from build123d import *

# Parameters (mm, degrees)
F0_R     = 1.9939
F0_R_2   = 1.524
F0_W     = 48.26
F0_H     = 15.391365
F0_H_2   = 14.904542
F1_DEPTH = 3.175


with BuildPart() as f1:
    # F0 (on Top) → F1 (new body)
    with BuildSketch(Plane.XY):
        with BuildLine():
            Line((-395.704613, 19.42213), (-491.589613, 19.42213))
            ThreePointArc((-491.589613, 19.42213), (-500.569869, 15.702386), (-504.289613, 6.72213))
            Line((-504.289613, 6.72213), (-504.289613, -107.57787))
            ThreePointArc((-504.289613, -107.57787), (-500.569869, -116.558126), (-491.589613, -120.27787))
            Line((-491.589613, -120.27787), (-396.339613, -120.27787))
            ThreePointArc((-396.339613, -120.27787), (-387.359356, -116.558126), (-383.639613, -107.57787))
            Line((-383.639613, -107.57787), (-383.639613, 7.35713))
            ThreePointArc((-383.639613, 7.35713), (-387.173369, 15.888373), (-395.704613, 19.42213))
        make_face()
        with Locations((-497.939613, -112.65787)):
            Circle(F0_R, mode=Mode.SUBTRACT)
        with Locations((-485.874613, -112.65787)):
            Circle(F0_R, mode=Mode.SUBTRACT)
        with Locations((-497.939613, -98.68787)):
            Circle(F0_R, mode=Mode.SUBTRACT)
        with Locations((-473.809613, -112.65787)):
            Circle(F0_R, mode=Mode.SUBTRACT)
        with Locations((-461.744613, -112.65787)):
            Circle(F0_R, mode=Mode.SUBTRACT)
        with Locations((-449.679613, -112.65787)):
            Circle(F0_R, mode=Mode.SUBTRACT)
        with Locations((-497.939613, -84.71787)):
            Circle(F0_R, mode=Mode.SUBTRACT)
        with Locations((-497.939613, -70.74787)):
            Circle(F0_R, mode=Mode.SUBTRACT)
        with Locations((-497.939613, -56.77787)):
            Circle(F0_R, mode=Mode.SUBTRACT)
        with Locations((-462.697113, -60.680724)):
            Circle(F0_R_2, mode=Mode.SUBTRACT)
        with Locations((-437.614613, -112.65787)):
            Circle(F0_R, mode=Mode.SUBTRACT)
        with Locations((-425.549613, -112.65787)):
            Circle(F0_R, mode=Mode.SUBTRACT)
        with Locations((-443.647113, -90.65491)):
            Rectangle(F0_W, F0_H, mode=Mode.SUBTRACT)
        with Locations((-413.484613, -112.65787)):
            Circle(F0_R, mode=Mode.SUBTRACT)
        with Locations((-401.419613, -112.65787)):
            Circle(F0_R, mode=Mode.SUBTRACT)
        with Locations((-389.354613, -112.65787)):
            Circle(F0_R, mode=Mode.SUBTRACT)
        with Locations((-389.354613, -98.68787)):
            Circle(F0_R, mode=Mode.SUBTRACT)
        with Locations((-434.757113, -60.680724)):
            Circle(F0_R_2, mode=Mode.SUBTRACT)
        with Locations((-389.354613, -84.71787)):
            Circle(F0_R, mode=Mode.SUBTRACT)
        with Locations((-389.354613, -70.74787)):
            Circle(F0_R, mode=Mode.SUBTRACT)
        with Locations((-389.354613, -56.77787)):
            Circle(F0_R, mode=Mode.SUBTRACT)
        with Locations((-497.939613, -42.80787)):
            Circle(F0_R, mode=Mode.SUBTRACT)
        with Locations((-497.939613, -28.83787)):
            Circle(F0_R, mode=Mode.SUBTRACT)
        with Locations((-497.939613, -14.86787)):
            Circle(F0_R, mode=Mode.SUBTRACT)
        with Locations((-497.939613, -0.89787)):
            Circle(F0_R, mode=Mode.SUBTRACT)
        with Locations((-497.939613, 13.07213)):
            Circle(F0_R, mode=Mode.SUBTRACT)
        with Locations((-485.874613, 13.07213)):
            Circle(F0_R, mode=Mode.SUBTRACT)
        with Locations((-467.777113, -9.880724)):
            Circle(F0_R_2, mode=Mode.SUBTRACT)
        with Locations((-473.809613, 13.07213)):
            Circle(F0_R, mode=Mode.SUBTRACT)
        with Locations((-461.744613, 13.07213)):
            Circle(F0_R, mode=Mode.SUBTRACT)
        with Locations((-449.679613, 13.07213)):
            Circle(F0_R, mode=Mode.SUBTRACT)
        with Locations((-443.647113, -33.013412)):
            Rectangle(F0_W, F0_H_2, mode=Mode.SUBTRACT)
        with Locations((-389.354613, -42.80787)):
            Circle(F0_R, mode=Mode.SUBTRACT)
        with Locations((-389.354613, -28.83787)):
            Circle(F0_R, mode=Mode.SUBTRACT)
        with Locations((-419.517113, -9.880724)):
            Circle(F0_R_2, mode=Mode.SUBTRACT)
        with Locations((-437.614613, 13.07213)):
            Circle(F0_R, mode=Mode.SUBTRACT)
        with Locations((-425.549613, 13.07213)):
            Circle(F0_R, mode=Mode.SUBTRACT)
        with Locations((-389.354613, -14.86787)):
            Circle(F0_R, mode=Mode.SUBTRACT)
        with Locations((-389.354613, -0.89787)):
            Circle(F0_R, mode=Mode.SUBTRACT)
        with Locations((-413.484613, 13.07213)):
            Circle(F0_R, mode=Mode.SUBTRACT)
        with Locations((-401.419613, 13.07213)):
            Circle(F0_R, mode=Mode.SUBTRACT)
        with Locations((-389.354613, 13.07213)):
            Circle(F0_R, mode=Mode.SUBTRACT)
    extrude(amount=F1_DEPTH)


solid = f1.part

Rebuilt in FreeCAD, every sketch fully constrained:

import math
import FreeCAD as App
import Part
import Sketcher
Q = App.Units.Quantity


def add_polygon(sketch, points):
    """Adds a closed chain of lines whose ends are joined by coincident constraints."""
    first, n = sketch.GeometryCount, len(points)
    for a, b in zip(points, points[1:] + points[:1]):
        sketch.addGeometry(Part.LineSegment(App.Vector(*a, 0), App.Vector(*b, 0)), False)
    for i in range(n):
        sketch.addConstraint(Sketcher.Constraint("Coincident", first + i, 2, first + (i + 1) % n, 1))

doc = App.newDocument("Part")
body = doc.addObject("PartDesign::Body", "Body")

# Sketch on XY plane
sketch1 = doc.addObject("Sketcher::SketchObject", "Sketch")
body.addObject(sketch1)
sketch1.AttachmentSupport = (doc.XY_Plane, [""])
sketch1.MapMode = "FlatFace"
sketch1.addGeometry(Part.LineSegment(App.Vector(-395.7, 19.4, 0), App.Vector(-491.6, 19.4, 0)), False)  # 0
sketch1.addGeometry(Part.ArcOfCircle(Part.Circle(App.Vector(-491.6, 6.7, 0), App.Vector(0, 0, 1), 12.7), math.radians(90), math.radians(180)), False)  # 1
sketch1.addGeometry(Part.LineSegment(App.Vector(-504.3, 6.7, 0), App.Vector(-504.3, -107.6, 0)), False)  # 2
sketch1.addGeometry(Part.ArcOfCircle(Part.Circle(App.Vector(-491.6, -107.6, 0), App.Vector(0, 0, 1), 12.7), math.radians(-180), math.radians(-90)), False)  # 3
sketch1.addGeometry(Part.LineSegment(App.Vector(-491.6, -120.3, 0), App.Vector(-396.3, -120.3, 0)), False)  # 4
sketch1.addGeometry(Part.ArcOfCircle(Part.Circle(App.Vector(-396.3, -107.6, 0), App.Vector(0, 0, 1), 12.7), math.radians(-90), math.radians(0)), False)  # 5
sketch1.addGeometry(Part.LineSegment(App.Vector(-383.6, -107.6, 0), App.Vector(-383.6, 7.4, 0)), False)  # 6
sketch1.addGeometry(Part.ArcOfCircle(Part.Circle(App.Vector(-395.7, 7.4, 0), App.Vector(0, 0, 1), 12.1), math.radians(0), math.radians(90)), False)  # 7
sketch1.addGeometry(Part.Circle(App.Vector(-497.9, -112.7, 0), App.Vector(0, 0, 1), 2), False)  # 8
sketch1.addGeometry(Part.Circle(App.Vector(-485.9, -112.7, 0), App.Vector(0, 0, 1), 2), False)  # 9
sketch1.addGeometry(Part.Circle(App.Vector(-497.9, -98.7, 0), App.Vector(0, 0, 1), 2), False)  # 10
sketch1.addGeometry(Part.Circle(App.Vector(-473.8, -112.7, 0), App.Vector(0, 0, 1), 2), False)  # 11
sketch1.addGeometry(Part.Circle(App.Vector(-497.9, -84.7, 0), App.Vector(0, 0, 1), 2), False)  # 12
sketch1.addGeometry(Part.Circle(App.Vector(-461.7, -112.7, 0), App.Vector(0, 0, 1), 2), False)  # 13
sketch1.addGeometry(Part.Circle(App.Vector(-449.7, -112.7, 0), App.Vector(0, 0, 1), 2), False)  # 14
sketch1.addGeometry(Part.Circle(App.Vector(-497.9, -70.7, 0), App.Vector(0, 0, 1), 2), False)  # 15
sketch1.addGeometry(Part.Circle(App.Vector(-497.9, -56.8, 0), App.Vector(0, 0, 1), 2), False)  # 16
sketch1.addGeometry(Part.Circle(App.Vector(-462.7, -60.7, 0), App.Vector(0, 0, 1), 1.5), False)  # 17
sketch1.addGeometry(Part.Circle(App.Vector(-437.6, -112.7, 0), App.Vector(0, 0, 1), 2), False)  # 18
sketch1.addGeometry(Part.Circle(App.Vector(-425.5, -112.7, 0), App.Vector(0, 0, 1), 2), False)  # 19
add_polygon(sketch1, [(-419.5, -98.4), (-467.8, -98.4), (-467.8, -83), (-419.5, -83)])  # lines 20-23
sketch1.addGeometry(Part.Circle(App.Vector(-413.5, -112.7, 0), App.Vector(0, 0, 1), 2), False)  # 24
sketch1.addGeometry(Part.Circle(App.Vector(-401.4, -112.7, 0), App.Vector(0, 0, 1), 2), False)  # 25
sketch1.addGeometry(Part.Circle(App.Vector(-389.4, -112.7, 0), App.Vector(0, 0, 1), 2), False)  # 26
sketch1.addGeometry(Part.Circle(App.Vector(-389.4, -98.7, 0), App.Vector(0, 0, 1), 2), False)  # 27
sketch1.addGeometry(Part.Circle(App.Vector(-389.4, -84.7, 0), App.Vector(0, 0, 1), 2), False)  # 28
sketch1.addGeometry(Part.Circle(App.Vector(-434.8, -60.7, 0), App.Vector(0, 0, 1), 1.5), False)  # 29
sketch1.addGeometry(Part.Circle(App.Vector(-389.4, -70.7, 0), App.Vector(0, 0, 1), 2), False)  # 30
sketch1.addGeometry(Part.Circle(App.Vector(-389.4, -56.8, 0), App.Vector(0, 0, 1), 2), False)  # 31
sketch1.addGeometry(Part.Circle(App.Vector(-497.9, -42.8, 0), App.Vector(0, 0, 1), 2), False)  # 32
sketch1.addGeometry(Part.Circle(App.Vector(-497.9, -28.8, 0), App.Vector(0, 0, 1), 2), False)  # 33
sketch1.addGeometry(Part.Circle(App.Vector(-497.9, -14.9, 0), App.Vector(0, 0, 1), 2), False)  # 34
sketch1.addGeometry(Part.Circle(App.Vector(-497.9, -0.9, 0), App.Vector(0, 0, 1), 2), False)  # 35
sketch1.addGeometry(Part.Circle(App.Vector(-497.9, 13.1, 0), App.Vector(0, 0, 1), 2), False)  # 36
sketch1.addGeometry(Part.Circle(App.Vector(-485.9, 13.1, 0), App.Vector(0, 0, 1), 2), False)  # 37
sketch1.addGeometry(Part.Circle(App.Vector(-473.8, 13.1, 0), App.Vector(0, 0, 1), 2), False)  # 38
sketch1.addGeometry(Part.Circle(App.Vector(-467.8, -9.9, 0), App.Vector(0, 0, 1), 1.5), False)  # 39
sketch1.addGeometry(Part.Circle(App.Vector(-461.7, 13.1, 0), App.Vector(0, 0, 1), 2), False)  # 40
sketch1.addGeometry(Part.Circle(App.Vector(-449.7, 13.1, 0), App.Vector(0, 0, 1), 2), False)  # 41
add_polygon(sketch1, [(-419.5, -40.5), (-467.8, -40.5), (-467.8, -25.6), (-419.5, -25.6)])  # lines 42-45
sketch1.addGeometry(Part.Circle(App.Vector(-389.4, -42.8, 0), App.Vector(0, 0, 1), 2), False)  # 46
sketch1.addGeometry(Part.Circle(App.Vector(-389.4, -28.8, 0), App.Vector(0, 0, 1), 2), False)  # 47
sketch1.addGeometry(Part.Circle(App.Vector(-419.5, -9.9, 0), App.Vector(0, 0, 1), 1.5), False)  # 48
sketch1.addGeometry(Part.Circle(App.Vector(-437.6, 13.1, 0), App.Vector(0, 0, 1), 2), False)  # 49
sketch1.addGeometry(Part.Circle(App.Vector(-425.5, 13.1, 0), App.Vector(0, 0, 1), 2), False)  # 50
sketch1.addGeometry(Part.Circle(App.Vector(-389.4, -14.9, 0), App.Vector(0, 0, 1), 2), False)  # 51
sketch1.addGeometry(Part.Circle(App.Vector(-413.5, 13.1, 0), App.Vector(0, 0, 1), 2), False)  # 52
sketch1.addGeometry(Part.Circle(App.Vector(-389.4, -0.9, 0), App.Vector(0, 0, 1), 2), False)  # 53
sketch1.addGeometry(Part.Circle(App.Vector(-401.4, 13.1, 0), App.Vector(0, 0, 1), 2), False)  # 54
sketch1.addGeometry(Part.Circle(App.Vector(-389.4, 13.1, 0), App.Vector(0, 0, 1), 2), False)  # 55
sketch1.addConstraint(Sketcher.Constraint("Tangent", 0, 2, 1, 1))
sketch1.addConstraint(Sketcher.Constraint("Tangent", 1, 2, 2, 1))
sketch1.addConstraint(Sketcher.Constraint("Tangent", 2, 2, 3, 1))
sketch1.addConstraint(Sketcher.Constraint("Tangent", 3, 2, 4, 1))
sketch1.addConstraint(Sketcher.Constraint("Tangent", 4, 2, 5, 1))
sketch1.addConstraint(Sketcher.Constraint("Tangent", 5, 2, 6, 1))
sketch1.addConstraint(Sketcher.Constraint("Tangent", 6, 2, 7, 1))
sketch1.addConstraint(Sketcher.Constraint("Tangent", 7, 2, 0, 1))
sketch1.addConstraint(Sketcher.Constraint("Horizontal", 0))
sketch1.addConstraint(Sketcher.Constraint("Vertical", 2))
sketch1.addConstraint(Sketcher.Constraint("Horizontal", 4))
sketch1.addConstraint(Sketcher.Constraint("Vertical", 6))
sketch1.addConstraint(Sketcher.Constraint("Horizontal", 20))
sketch1.addConstraint(Sketcher.Constraint("Vertical", 21))
sketch1.addConstraint(Sketcher.Constraint("Horizontal", 22))
sketch1.addConstraint(Sketcher.Constraint("Vertical", 23))
sketch1.addConstraint(Sketcher.Constraint("Horizontal", 42))
sketch1.addConstraint(Sketcher.Constraint("Vertical", 43))
sketch1.addConstraint(Sketcher.Constraint("Horizontal", 44))
sketch1.addConstraint(Sketcher.Constraint("Vertical", 45))
sketch1.addConstraint(Sketcher.Constraint("Equal", 1, 3))
sketch1.addConstraint(Sketcher.Constraint("Equal", 3, 5))
sketch1.addConstraint(Sketcher.Constraint("Equal", 8, 9))
sketch1.addConstraint(Sketcher.Constraint("Equal", 9, 10))
sketch1.addConstraint(Sketcher.Constraint("Equal", 10, 11))
sketch1.addConstraint(Sketcher.Constraint("Equal", 11, 12))
sketch1.addConstraint(Sketcher.Constraint("Equal", 12, 13))
sketch1.addConstraint(Sketcher.Constraint("Equal", 13, 14))
sketch1.addConstraint(Sketcher.Constraint("Equal", 14, 15))
sketch1.addConstraint(Sketcher.Constraint("Equal", 15, 16))
sketch1.addConstraint(Sketcher.Constraint("Equal", 16, 18))
sketch1.addConstraint(Sketcher.Constraint("Equal", 18, 19))
sketch1.addConstraint(Sketcher.Constraint("Equal", 19, 24))
sketch1.addConstraint(Sketcher.Constraint("Equal", 24, 25))
sketch1.addConstraint(Sketcher.Constraint("Equal", 25, 26))
sketch1.addConstraint(Sketcher.Constraint("Equal", 26, 27))
sketch1.addConstraint(Sketcher.Constraint("Equal", 27, 28))
sketch1.addConstraint(Sketcher.Constraint("Equal", 17, 29))
sketch1.addConstraint(Sketcher.Constraint("Equal", 28, 30))
sketch1.addConstraint(Sketcher.Constraint("Equal", 30, 31))
sketch1.addConstraint(Sketcher.Constraint("Equal", 31, 32))
sketch1.addConstraint(Sketcher.Constraint("Equal", 32, 33))
sketch1.addConstraint(Sketcher.Constraint("Equal", 33, 34))
sketch1.addConstraint(Sketcher.Constraint("Equal", 34, 35))
sketch1.addConstraint(Sketcher.Constraint("Equal", 35, 36))
sketch1.addConstraint(Sketcher.Constraint("Equal", 36, 37))
sketch1.addConstraint(Sketcher.Constraint("Equal", 37, 38))
sketch1.addConstraint(Sketcher.Constraint("Equal", 29, 39))
sketch1.addConstraint(Sketcher.Constraint("Equal", 38, 40))
sketch1.addConstraint(Sketcher.Constraint("Equal", 40, 41))
sketch1.addConstraint(Sketcher.Constraint("Equal", 41, 46))
sketch1.addConstraint(Sketcher.Constraint("Equal", 46, 47))
sketch1.addConstraint(Sketcher.Constraint("Equal", 39, 48))
sketch1.addConstraint(Sketcher.Constraint("Equal", 47, 49))
sketch1.addConstraint(Sketcher.Constraint("Equal", 49, 50))
sketch1.addConstraint(Sketcher.Constraint("Equal", 50, 51))
sketch1.addConstraint(Sketcher.Constraint("Equal", 51, 52))
sketch1.addConstraint(Sketcher.Constraint("Equal", 52, 53))
sketch1.addConstraint(Sketcher.Constraint("Equal", 53, 54))
sketch1.addConstraint(Sketcher.Constraint("Equal", 54, 55))
sketch1.addConstraint(Sketcher.Constraint("Horizontal", 8, 3, 9, 3))
sketch1.addConstraint(Sketcher.Constraint("Horizontal", 9, 3, 11, 3))
sketch1.addConstraint(Sketcher.Constraint("Horizontal", 11, 3, 13, 3))
sketch1.addConstraint(Sketcher.Constraint("Horizontal", 13, 3, 14, 3))
sketch1.addConstraint(Sketcher.Constraint("Horizontal", 14, 3, 18, 3))
sketch1.addConstraint(Sketcher.Constraint("Horizontal", 18, 3, 19, 3))
sketch1.addConstraint(Sketcher.Constraint("Horizontal", 19, 3, 24, 3))
sketch1.addConstraint(Sketcher.Constraint("Horizontal", 24, 3, 25, 3))
sketch1.addConstraint(Sketcher.Constraint("Horizontal", 25, 3, 26, 3))
sketch1.addConstraint(Sketcher.Constraint("Horizontal", 10, 3, 27, 3))
sketch1.addConstraint(Sketcher.Constraint("Horizontal", 12, 3, 28, 3))
sketch1.addConstraint(Sketcher.Constraint("Horizontal", 17, 3, 29, 3))
sketch1.addConstraint(Sketcher.Constraint("Horizontal", 15, 3, 30, 3))
sketch1.addConstraint(Sketcher.Constraint("Horizontal", 16, 3, 31, 3))
sketch1.addConstraint(Sketcher.Constraint("Horizontal", 36, 3, 37, 3))
sketch1.addConstraint(Sketcher.Constraint("Horizontal", 37, 3, 38, 3))
sketch1.addConstraint(Sketcher.Constraint("Horizontal", 38, 3, 40, 3))
sketch1.addConstraint(Sketcher.Constraint("Horizontal", 40, 3, 41, 3))
sketch1.addConstraint(Sketcher.Constraint("Horizontal", 32, 3, 46, 3))
sketch1.addConstraint(Sketcher.Constraint("Horizontal", 33, 3, 47, 3))
sketch1.addConstraint(Sketcher.Constraint("Horizontal", 39, 3, 48, 3))
sketch1.addConstraint(Sketcher.Constraint("Horizontal", 41, 3, 49, 3))
sketch1.addConstraint(Sketcher.Constraint("Horizontal", 49, 3, 50, 3))
sketch1.addConstraint(Sketcher.Constraint("Horizontal", 34, 3, 51, 3))
sketch1.addConstraint(Sketcher.Constraint("Horizontal", 50, 3, 52, 3))
sketch1.addConstraint(Sketcher.Constraint("Horizontal", 35, 3, 53, 3))
sketch1.addConstraint(Sketcher.Constraint("Horizontal", 52, 3, 54, 3))
sketch1.addConstraint(Sketcher.Constraint("Horizontal", 54, 3, 55, 3))
sketch1.addConstraint(Sketcher.Constraint("Vertical", 8, 3, 10, 3))
sketch1.addConstraint(Sketcher.Constraint("Vertical", 10, 3, 12, 3))
sketch1.addConstraint(Sketcher.Constraint("Vertical", 12, 3, 15, 3))
sketch1.addConstraint(Sketcher.Constraint("Vertical", 15, 3, 16, 3))
sketch1.addConstraint(Sketcher.Constraint("Vertical", 26, 3, 27, 3))
sketch1.addConstraint(Sketcher.Constraint("Vertical", 27, 3, 28, 3))
sketch1.addConstraint(Sketcher.Constraint("Vertical", 28, 3, 30, 3))
sketch1.addConstraint(Sketcher.Constraint("Vertical", 30, 3, 31, 3))
sketch1.addConstraint(Sketcher.Constraint("Vertical", 16, 3, 32, 3))
sketch1.addConstraint(Sketcher.Constraint("Vertical", 32, 3, 33, 3))
sketch1.addConstraint(Sketcher.Constraint("Vertical", 33, 3, 34, 3))
sketch1.addConstraint(Sketcher.Constraint("Vertical", 34, 3, 35, 3))
sketch1.addConstraint(Sketcher.Constraint("Vertical", 35, 3, 36, 3))
sketch1.addConstraint(Sketcher.Constraint("Vertical", 9, 3, 37, 3))
sketch1.addConstraint(Sketcher.Constraint("Vertical", 11, 3, 38, 3))
sketch1.addConstraint(Sketcher.Constraint("Vertical", 13, 3, 40, 3))
sketch1.addConstraint(Sketcher.Constraint("Vertical", 14, 3, 41, 3))
sketch1.addConstraint(Sketcher.Constraint("Vertical", 31, 3, 46, 3))
sketch1.addConstraint(Sketcher.Constraint("Vertical", 46, 3, 47, 3))
sketch1.addConstraint(Sketcher.Constraint("Vertical", 18, 3, 49, 3))
sketch1.addConstraint(Sketcher.Constraint("Vertical", 19, 3, 50, 3))
sketch1.addConstraint(Sketcher.Constraint("Vertical", 47, 3, 51, 3))
sketch1.addConstraint(Sketcher.Constraint("Vertical", 24, 3, 52, 3))
sketch1.addConstraint(Sketcher.Constraint("Vertical", 51, 3, 53, 3))
sketch1.addConstraint(Sketcher.Constraint("Vertical", 25, 3, 54, 3))
sketch1.addConstraint(Sketcher.Constraint("Vertical", 53, 3, 55, 3))
sketch1.addConstraint(Sketcher.Constraint("Vertical", 39, 3, 20, 2))
sketch1.addConstraint(Sketcher.Constraint("Vertical", 48, 3, 22, 2))
sketch1.addConstraint(Sketcher.Constraint("Vertical", 21, 2, 42, 2))
sketch1.addConstraint(Sketcher.Constraint("Vertical", 23, 2, 44, 2))
sketch1.addConstraint(Sketcher.Constraint("Radius", 1, Q("0.5 in")))
sketch1.addConstraint(Sketcher.Constraint("Diameter", 17, Q("0.12 in")))
sketch1.addConstraint(Sketcher.Constraint("Diameter", 8, Q("0.157 in")))
sketch1.addConstraint(Sketcher.Constraint("DistanceX", 20, 2, 20, 1, Q("1.9 in")))
sketch1.addConstraint(Sketcher.Constraint("DistanceY", 2, 2, 2, 1, Q("4.5 in")))
sketch1.addConstraint(Sketcher.Constraint("Radius", 7, Q("0.475 in")))
sketch1.addConstraint(Sketcher.Constraint("DistanceX", 8, 3, 5, 3, Q("4.0000001 in")))
sketch1.addConstraint(Sketcher.Constraint("DistanceY", 3, 3, 16, 3, Q("2 in")))
sketch1.addConstraint(Sketcher.Constraint("DistanceX", 4, 1, 4, 2, Q("3.75 in")))
sketch1.addConstraint(Sketcher.Constraint("DistanceY", 8, 3, 3, 3, Q("0.2 in")))
sketch1.addConstraint(Sketcher.Constraint("DistanceX", 3, 3, 11, 3, Q("0.7 in")))
sketch1.addConstraint(Sketcher.Constraint("DistanceY", 3, 3, 12, 3, Q("0.9 in")))
sketch1.addConstraint(Sketcher.Constraint("DistanceX", 8, 3, 14, 3, Q("1.9 in")))
sketch1.addConstraint(Sketcher.Constraint("DistanceY", 10, 3, 15, 3, Q("1.1 in")))
sketch1.addConstraint(Sketcher.Constraint("DistanceX", 9, 3, 18, 3, Q("1.9 in")))
sketch1.addConstraint(Sketcher.Constraint("DistanceX", 11, 3, 19, 3, Q("1.9 in")))
sketch1.addConstraint(Sketcher.Constraint("DistanceX", 13, 3, 24, 3, Q("1.9 in")))
sketch1.addConstraint(Sketcher.Constraint("DistanceX", 25, 3, 5, 3, Q("0.2000001 in")))
sketch1.addConstraint(Sketcher.Constraint("DistanceX", 18, 3, 26, 3, Q("1.9 in")))
sketch1.addConstraint(Sketcher.Constraint("DistanceX", 17, 3, 29, 3, Q("1.1 in")))
sketch1.addConstraint(Sketcher.Constraint("DistanceY", 15, 3, 32, 3, Q("1.1 in")))
sketch1.addConstraint(Sketcher.Constraint("DistanceY", 16, 3, 33, 3, Q("1.1 in")))
sketch1.addConstraint(Sketcher.Constraint("DistanceY", 32, 3, 34, 3, Q("1.1 in")))
sketch1.addConstraint(Sketcher.Constraint("DistanceY", 35, 3, 1, 3, Q("0.3 in")))
sketch1.addConstraint(Sketcher.Constraint("DistanceY", 34, 3, 36, 3, Q("1.1 in")))
sketch1.addConstraint(Sketcher.Constraint("DistanceX", 52, 3, 7, 3, Q("0.7 in")))
sketch1.addConstraint(Sketcher.Constraint("DistanceX", 21, 2, 17, 3, Q("0.2 in")))
sketch1.addConstraint(Sketcher.Constraint("DistanceX", 9, 3, 7, 3, Q("3.55 in")))
sketch1.addConstraint(Sketcher.Constraint("DistanceY", 3, 3, 10, 3, Q("0.35 in")))
sketch1.addConstraint(Sketcher.Constraint("DistanceX", 1, 3, 39, 3, Q("0.9375 in")))
sketch1.addConstraint(Sketcher.Constraint("DistanceY", 43, 1, 43, 2, Q("14.904542 mm")))
sketch1.addConstraint(Sketcher.Constraint("DistanceY", 21, 1, 21, 2, Q("15.391365 mm")))
sketch1.addConstraint(Sketcher.Constraint("DistanceY", -1, 1, 1, 3, Q("6.72213 mm")))
sketch1.addConstraint(Sketcher.Constraint("DistanceX", 5, 3, -1, 1, Q("396.339612 mm")))
sketch1.addConstraint(Sketcher.Constraint("DistanceY", 43, 2, -1, 1, Q("25.561141 mm")))
sketch1.addConstraint(Sketcher.Constraint("DistanceY", 17, 3, 42, 2, Q("20.215041 mm")))
sketch1.addConstraint(Sketcher.Constraint("DistanceY", 42, 2, 39, 3, Q("30.584959 mm")))
sketch1.addConstraint(Sketcher.Constraint("DistanceY", 20, 2, -1, 1, Q("98.350593 mm")))
pad1 = doc.addObject("PartDesign::Pad", "Pad")
body.addObject(pad1)
pad1.Profile = sketch1
pad1.Length = Q("0.125 in")

doc.recompute()
